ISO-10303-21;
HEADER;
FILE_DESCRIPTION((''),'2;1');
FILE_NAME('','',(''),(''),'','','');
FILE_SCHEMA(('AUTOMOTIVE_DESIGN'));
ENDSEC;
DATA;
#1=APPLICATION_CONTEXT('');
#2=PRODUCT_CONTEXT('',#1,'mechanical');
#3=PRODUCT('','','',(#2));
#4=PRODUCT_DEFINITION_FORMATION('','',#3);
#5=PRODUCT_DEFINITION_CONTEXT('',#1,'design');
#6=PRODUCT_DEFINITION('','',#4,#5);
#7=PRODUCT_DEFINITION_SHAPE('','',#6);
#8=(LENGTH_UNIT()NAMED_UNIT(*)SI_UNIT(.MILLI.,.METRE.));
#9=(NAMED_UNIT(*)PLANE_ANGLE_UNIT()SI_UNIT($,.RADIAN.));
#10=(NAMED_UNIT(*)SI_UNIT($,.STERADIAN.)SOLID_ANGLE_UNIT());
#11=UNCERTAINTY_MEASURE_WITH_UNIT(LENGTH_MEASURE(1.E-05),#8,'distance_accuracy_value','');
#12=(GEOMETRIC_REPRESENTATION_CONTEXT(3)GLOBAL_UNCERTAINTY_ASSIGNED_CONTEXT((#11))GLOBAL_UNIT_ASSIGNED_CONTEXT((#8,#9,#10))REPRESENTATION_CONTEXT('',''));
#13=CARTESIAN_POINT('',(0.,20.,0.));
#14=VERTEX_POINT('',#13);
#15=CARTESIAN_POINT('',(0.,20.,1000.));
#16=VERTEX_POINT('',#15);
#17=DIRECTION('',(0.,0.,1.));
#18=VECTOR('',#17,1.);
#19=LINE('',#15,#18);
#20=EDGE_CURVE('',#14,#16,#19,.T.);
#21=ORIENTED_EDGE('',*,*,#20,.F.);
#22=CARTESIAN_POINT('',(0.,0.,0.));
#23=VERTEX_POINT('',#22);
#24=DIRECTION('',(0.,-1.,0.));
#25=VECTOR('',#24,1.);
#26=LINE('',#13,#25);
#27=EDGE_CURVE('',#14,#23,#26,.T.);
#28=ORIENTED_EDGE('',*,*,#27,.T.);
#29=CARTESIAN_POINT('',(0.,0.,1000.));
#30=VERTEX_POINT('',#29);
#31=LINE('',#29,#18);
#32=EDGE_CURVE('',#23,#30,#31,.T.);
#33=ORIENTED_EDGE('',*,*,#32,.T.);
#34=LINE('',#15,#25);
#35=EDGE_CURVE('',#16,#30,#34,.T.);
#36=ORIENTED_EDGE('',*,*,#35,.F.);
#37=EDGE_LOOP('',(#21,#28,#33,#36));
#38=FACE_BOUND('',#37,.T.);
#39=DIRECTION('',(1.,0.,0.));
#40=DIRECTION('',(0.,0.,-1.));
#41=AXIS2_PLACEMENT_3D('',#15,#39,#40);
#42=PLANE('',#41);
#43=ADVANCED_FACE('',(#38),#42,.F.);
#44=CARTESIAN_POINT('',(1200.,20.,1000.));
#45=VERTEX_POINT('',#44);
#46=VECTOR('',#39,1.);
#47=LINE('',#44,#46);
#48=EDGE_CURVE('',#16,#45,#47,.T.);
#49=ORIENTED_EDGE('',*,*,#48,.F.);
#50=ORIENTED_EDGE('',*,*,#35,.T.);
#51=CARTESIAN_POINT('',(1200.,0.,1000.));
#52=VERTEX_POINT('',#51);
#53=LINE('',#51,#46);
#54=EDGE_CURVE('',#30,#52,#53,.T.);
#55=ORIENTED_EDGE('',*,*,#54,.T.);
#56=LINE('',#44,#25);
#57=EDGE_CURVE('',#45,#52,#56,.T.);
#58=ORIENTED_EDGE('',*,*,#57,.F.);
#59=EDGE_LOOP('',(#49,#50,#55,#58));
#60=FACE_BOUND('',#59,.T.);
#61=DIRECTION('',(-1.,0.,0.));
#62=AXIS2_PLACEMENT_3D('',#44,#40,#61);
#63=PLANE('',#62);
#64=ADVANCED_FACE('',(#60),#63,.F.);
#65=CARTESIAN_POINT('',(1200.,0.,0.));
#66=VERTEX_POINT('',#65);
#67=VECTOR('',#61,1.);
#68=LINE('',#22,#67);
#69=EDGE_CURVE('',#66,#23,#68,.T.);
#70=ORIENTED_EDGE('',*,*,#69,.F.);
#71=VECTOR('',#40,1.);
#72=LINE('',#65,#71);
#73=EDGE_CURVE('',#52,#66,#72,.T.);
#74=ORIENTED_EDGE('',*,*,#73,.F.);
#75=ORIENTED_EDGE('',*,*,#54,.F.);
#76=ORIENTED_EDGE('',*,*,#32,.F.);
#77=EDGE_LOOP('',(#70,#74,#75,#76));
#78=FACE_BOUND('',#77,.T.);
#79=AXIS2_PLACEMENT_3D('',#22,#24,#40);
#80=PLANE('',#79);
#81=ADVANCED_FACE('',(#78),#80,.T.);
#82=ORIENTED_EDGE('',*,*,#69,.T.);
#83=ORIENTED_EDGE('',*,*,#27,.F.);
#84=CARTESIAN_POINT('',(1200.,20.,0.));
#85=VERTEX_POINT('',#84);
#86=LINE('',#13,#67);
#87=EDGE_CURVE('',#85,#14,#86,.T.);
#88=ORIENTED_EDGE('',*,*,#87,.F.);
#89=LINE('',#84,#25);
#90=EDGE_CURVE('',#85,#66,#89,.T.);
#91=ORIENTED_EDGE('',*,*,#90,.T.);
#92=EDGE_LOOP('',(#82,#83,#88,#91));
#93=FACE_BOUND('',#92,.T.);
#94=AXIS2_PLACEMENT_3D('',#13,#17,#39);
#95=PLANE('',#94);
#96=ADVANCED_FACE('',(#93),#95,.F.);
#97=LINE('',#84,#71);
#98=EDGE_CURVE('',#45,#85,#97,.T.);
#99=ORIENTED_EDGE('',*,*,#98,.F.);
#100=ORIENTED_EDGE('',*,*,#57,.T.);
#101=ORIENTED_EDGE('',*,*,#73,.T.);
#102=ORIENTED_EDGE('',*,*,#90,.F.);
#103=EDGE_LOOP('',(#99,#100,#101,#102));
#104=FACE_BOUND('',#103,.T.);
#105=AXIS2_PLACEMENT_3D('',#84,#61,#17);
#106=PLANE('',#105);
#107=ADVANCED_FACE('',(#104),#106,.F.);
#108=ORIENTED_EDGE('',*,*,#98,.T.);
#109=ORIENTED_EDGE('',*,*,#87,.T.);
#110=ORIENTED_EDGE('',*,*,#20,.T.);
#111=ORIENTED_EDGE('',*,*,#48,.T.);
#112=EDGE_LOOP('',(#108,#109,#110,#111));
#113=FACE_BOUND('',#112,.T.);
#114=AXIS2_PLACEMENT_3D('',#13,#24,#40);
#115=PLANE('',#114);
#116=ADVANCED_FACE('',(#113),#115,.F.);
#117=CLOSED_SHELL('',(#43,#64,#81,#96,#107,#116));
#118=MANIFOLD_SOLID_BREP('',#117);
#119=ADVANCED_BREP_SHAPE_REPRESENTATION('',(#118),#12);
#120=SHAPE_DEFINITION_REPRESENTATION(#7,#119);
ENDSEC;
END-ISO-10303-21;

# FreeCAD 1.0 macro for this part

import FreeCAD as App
import Part
import Sketcher

V = App.Vector
Q = App.Units.Quantity


def add_polygon(sketch, points):
    """Adds a closed chain of lines whose ends are joined by coincident constraints."""
    first, n = sketch.GeometryCount, len(points)
    for a, b in zip(points, points[1:] + points[:1]):
        sketch.addGeometry(Part.LineSegment(App.Vector(*a, 0), App.Vector(*b, 0)), False)
    for i in range(n):
        sketch.addConstraint(Sketcher.Constraint("Coincident", first + i, 2, first + (i + 1) % n, 1))

doc = App.newDocument("Part")
body = doc.addObject("PartDesign::Body", "Body")

# Sketch on XZ plane
sketch1 = body.newObject("Sketcher::SketchObject", "Sketch")
sketch1.AttachmentSupport = (doc.getObject("XZ_Plane"), [""])
sketch1.MapMode = "FlatFace"
add_polygon(sketch1, [(0, 0), (0, 1000), (1200, 1000), (1200, 0)])  # lines 0-3
sketch1.addConstraint(Sketcher.Constraint("Vertical", 0))
sketch1.addConstraint(Sketcher.Constraint("Horizontal", 1))
sketch1.addConstraint(Sketcher.Constraint("Vertical", 2))
sketch1.addConstraint(Sketcher.Constraint("Horizontal", 3))
sketch1.addConstraint(Sketcher.Constraint("Coincident", 3, 2, -1, 1))
sketch1.addConstraint(Sketcher.Constraint("DistanceX", 1, 1, 1, 2, Q("1200 mm")))
sketch1.addConstraint(Sketcher.Constraint("DistanceY", 0, 1, 0, 2, Q("1000 mm")))
pad1 = body.newObject("PartDesign::Pad", "Pad")
pad1.Profile = sketch1
pad1.Length = 20
pad1.Reversed = True

doc.recompute()
